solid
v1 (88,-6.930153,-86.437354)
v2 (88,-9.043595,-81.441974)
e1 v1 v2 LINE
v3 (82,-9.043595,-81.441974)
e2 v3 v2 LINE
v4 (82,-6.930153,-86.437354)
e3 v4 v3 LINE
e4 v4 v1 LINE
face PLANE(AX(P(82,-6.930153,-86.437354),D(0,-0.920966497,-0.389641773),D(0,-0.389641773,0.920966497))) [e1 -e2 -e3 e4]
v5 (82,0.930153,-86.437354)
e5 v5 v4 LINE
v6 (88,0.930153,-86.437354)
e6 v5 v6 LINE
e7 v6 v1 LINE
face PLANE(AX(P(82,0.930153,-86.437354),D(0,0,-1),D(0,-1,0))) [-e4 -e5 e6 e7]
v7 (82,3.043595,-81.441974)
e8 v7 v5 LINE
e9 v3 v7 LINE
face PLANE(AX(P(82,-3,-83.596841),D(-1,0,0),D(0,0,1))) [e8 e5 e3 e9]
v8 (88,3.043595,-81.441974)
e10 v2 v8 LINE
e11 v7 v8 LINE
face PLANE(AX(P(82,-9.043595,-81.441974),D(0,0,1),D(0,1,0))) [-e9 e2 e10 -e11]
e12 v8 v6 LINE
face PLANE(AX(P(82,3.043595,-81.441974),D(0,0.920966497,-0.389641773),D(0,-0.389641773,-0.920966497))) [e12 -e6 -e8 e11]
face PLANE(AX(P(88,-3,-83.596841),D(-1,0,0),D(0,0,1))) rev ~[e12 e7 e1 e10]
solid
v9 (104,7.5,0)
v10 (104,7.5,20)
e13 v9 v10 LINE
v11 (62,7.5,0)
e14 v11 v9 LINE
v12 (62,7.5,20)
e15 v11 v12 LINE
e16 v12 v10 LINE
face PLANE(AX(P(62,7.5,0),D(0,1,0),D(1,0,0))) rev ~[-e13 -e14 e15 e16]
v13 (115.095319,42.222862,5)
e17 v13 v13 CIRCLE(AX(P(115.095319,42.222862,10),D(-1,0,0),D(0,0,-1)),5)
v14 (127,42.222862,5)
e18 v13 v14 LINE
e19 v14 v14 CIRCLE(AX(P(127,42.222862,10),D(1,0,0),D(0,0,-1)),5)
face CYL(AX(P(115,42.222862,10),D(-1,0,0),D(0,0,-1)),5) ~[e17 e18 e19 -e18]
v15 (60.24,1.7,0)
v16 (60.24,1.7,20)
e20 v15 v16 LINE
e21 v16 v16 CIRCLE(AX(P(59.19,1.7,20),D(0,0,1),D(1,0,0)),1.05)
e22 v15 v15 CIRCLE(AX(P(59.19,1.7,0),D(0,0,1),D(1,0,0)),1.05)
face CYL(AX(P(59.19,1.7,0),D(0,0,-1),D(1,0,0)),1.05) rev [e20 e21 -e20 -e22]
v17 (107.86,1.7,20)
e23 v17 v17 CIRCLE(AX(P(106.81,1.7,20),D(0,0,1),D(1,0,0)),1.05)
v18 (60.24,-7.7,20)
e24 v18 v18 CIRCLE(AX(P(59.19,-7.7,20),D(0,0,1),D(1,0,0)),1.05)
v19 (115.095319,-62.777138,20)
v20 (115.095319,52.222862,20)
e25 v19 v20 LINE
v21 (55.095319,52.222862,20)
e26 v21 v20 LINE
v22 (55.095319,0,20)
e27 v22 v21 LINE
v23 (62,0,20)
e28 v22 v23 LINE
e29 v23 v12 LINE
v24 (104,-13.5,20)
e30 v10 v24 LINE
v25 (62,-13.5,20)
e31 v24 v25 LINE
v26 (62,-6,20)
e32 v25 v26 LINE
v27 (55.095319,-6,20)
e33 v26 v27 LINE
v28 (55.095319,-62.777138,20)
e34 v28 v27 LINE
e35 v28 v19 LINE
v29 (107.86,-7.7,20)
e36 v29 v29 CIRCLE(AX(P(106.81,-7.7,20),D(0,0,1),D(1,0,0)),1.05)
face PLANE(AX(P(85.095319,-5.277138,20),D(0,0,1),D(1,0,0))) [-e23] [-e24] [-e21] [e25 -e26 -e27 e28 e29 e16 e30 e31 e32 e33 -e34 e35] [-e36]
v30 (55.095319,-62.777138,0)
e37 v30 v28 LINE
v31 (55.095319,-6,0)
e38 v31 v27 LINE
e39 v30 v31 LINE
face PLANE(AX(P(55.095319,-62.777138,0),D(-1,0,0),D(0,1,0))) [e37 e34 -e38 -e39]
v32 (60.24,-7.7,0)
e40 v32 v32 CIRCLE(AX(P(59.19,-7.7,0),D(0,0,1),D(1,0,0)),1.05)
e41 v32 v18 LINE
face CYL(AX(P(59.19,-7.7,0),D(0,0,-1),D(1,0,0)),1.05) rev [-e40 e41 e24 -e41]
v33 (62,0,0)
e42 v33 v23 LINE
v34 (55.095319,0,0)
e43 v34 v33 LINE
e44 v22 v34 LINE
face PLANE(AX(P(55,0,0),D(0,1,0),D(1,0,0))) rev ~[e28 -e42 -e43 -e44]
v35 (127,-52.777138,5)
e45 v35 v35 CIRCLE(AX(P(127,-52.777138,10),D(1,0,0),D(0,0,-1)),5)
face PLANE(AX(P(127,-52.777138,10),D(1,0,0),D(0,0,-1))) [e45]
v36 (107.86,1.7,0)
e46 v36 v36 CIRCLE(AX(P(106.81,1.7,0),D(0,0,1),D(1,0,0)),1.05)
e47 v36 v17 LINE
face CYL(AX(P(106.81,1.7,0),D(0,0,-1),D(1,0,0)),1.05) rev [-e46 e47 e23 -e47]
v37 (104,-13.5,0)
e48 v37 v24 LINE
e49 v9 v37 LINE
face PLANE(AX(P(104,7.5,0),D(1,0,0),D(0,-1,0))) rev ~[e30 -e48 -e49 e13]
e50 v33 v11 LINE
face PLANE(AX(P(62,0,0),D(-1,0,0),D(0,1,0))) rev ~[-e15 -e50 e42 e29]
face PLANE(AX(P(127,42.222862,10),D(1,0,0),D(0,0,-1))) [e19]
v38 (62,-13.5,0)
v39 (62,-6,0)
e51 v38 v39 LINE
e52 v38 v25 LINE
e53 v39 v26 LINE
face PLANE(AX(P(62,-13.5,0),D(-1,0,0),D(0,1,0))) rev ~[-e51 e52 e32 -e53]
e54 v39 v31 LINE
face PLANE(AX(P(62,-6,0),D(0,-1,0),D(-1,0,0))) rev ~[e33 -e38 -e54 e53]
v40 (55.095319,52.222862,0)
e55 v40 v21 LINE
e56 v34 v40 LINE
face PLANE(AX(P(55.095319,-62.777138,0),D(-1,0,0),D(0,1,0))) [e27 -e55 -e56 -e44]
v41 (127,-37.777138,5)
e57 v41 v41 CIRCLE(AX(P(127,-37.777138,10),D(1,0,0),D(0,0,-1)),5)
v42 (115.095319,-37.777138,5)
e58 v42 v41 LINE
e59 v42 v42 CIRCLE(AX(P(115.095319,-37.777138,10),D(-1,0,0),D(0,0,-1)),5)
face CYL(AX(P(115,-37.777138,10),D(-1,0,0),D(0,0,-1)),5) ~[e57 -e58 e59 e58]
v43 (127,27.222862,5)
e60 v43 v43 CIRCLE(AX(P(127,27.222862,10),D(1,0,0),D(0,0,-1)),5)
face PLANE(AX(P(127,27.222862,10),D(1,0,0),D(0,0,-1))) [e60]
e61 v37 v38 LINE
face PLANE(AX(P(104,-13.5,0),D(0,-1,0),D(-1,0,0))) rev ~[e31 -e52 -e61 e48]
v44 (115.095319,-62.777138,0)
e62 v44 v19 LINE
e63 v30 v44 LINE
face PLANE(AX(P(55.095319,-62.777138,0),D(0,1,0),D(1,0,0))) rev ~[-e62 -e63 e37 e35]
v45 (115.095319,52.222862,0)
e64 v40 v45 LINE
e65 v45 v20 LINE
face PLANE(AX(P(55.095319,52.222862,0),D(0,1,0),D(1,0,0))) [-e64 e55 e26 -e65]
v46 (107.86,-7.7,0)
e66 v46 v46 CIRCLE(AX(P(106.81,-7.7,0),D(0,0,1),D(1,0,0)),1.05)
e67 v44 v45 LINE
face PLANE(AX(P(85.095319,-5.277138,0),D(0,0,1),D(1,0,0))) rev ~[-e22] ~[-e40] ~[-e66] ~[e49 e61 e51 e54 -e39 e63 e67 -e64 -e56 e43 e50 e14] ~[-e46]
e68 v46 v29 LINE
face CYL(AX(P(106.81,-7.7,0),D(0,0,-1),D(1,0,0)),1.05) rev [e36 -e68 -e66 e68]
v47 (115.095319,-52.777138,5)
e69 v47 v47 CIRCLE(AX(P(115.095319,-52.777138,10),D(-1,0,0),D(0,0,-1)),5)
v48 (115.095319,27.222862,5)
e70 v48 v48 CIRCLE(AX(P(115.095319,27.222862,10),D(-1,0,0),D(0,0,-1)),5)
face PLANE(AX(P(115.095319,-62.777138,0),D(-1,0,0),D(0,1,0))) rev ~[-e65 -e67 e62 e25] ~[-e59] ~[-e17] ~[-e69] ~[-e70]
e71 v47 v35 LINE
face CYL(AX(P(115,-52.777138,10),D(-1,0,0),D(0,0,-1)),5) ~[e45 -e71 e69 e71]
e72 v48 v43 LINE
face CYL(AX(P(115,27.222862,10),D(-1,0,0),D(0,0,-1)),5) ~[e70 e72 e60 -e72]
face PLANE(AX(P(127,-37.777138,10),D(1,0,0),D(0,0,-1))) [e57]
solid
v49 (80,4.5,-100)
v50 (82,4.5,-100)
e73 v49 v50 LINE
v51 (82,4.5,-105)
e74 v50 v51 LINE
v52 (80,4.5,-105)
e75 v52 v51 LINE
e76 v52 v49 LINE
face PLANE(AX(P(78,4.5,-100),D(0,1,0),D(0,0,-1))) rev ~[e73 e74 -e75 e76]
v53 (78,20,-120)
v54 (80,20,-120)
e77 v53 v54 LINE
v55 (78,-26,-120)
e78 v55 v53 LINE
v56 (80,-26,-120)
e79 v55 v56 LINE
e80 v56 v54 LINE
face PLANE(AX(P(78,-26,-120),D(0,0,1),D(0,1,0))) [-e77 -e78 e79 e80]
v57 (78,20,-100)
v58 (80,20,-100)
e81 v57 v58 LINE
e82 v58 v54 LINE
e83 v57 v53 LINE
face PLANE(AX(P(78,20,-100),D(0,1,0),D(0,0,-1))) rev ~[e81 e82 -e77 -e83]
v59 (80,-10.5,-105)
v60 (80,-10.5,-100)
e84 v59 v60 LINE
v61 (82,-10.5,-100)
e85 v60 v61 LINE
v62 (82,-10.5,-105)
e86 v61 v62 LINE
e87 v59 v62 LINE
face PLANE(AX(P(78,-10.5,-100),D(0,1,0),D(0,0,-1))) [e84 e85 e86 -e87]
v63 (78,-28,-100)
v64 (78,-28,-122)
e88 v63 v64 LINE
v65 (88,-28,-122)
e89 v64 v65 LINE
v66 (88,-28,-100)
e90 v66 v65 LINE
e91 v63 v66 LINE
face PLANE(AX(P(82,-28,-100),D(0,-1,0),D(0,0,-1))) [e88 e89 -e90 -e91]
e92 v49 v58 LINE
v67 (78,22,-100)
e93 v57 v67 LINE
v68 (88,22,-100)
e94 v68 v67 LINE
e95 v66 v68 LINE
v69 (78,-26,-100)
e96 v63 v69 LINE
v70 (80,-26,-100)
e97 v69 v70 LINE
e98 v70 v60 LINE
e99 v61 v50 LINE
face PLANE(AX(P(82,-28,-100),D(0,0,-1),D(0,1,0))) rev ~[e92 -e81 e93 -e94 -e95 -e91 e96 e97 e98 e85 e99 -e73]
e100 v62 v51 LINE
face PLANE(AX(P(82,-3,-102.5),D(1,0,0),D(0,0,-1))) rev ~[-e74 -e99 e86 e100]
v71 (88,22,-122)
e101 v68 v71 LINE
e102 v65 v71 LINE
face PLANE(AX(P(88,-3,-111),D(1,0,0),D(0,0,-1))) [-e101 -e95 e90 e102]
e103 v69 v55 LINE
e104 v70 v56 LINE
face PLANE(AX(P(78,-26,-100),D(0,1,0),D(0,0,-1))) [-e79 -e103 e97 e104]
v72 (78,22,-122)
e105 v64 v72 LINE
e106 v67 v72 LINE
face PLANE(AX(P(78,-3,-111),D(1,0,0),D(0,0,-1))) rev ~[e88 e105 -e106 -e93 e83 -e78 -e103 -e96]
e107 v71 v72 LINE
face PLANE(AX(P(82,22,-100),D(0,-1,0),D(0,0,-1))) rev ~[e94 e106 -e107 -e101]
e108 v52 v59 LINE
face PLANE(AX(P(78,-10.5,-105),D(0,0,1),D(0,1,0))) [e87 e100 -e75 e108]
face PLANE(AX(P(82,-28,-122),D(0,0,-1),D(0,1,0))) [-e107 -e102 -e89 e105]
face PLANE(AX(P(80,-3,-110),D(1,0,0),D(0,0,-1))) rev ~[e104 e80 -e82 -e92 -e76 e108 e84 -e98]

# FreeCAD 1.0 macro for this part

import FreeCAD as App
import Part
import Sketcher
from FreeCAD import Vector
Q = App.Units.Quantity


def add_polygon(sketch, points):
    """Adds a closed chain of lines whose ends are joined by coincident constraints."""
    first, n = sketch.GeometryCount, len(points)
    for a, b in zip(points, points[1:] + points[:1]):
        sketch.addGeometry(Part.LineSegment(App.Vector(*a, 0), App.Vector(*b, 0)), False)
    for i in range(n):
        sketch.addConstraint(Sketcher.Constraint("Coincident", first + i, 2, first + (i + 1) % n, 1))

doc = App.newDocument("Part")
body = doc.addObject("PartDesign::Body", "Body")

# Sketch on XY plane
sketch1 = doc.addObject("Sketcher::SketchObject", "Sketch")
body.addObject(sketch1)
sketch1.AttachmentSupport = (doc.XY_Plane, [""])
sketch1.MapMode = "FlatFace"
add_polygon(sketch1, [(55.095319, 52.222862), (55.095319, -62.777138), (115.095319, -62.777138), (115.095319, 52.222862)])  # lines 0-3
sketch1.addConstraint([
    Sketcher.Constraint("Vertical", 0),
    Sketcher.Constraint("Horizontal", 1),
    Sketcher.Constraint("Vertical", 2),
    Sketcher.Constraint("Horizontal", 3),
    Sketcher.Constraint("DistanceX", 1, 1, 1, 2, Q("60 mm")),
    Sketcher.Constraint("DistanceY", 0, 2, 0, 1, Q("115 mm")),
    Sketcher.Constraint("DistanceX", -1, 1, 0, 2, Q("55.095319 mm")),
    Sketcher.Constraint("DistanceY", 0, 2, -1, 1, Q("62.777138 mm")),
])
pad1 = doc.addObject("PartDesign::Pad", "Pad")
body.addObject(pad1)
pad1.Profile = sketch1
pad1.Length = 20

# Sketch on XY plane
sketch2 = doc.addObject("Sketcher::SketchObject", "Sketch001")
body.addObject(sketch2)
sketch2.AttachmentSupport = (doc.XY_Plane, [""])
sketch2.MapMode = "FlatFace"
sketch2.addGeometry(Part.Circle(Vector(59.19, 1.7, 0), Vector(0, 0, 1), 1.05), False)  # 0
sketch2.addGeometry(Part.Circle(Vector(106.81, 1.7, 0), Vector(0, 0, 1), 1.05), False)  # 1
sketch2.addGeometry(Part.Circle(Vector(106.81, -7.7, 0), Vector(0, 0, 1), 1.05), False)  # 2
sketch2.addGeometry(Part.Circle(Vector(59.19, -7.7, 0), Vector(0, 0, 1), 1.05), False)  # 3
add_polygon(sketch2, [(55, 0), (55, -6), (62, -6), (62, -13.5), (104, -13.5), (104, 7.5), (62, 7.5), (62, 0)])  # lines 4-11
sketch2.addConstraint([
    Sketcher.Constraint("Vertical", 4),
    Sketcher.Constraint("Horizontal", 5),
    Sketcher.Constraint("Vertical", 6),
    Sketcher.Constraint("Horizontal", 7),
    Sketcher.Constraint("Vertical", 8),
    Sketcher.Constraint("Horizontal", 9),
    Sketcher.Constraint("Vertical", 10),
    Sketcher.Constraint("Horizontal", 11),
    Sketcher.Constraint("Equal", 0, 1),
    Sketcher.Constraint("Equal", 1, 2),
    Sketcher.Constraint("Equal", 2, 3),
    Sketcher.Constraint("PointOnObject", 10, 2, -1),
    Sketcher.Constraint("Horizontal", 0, 3, 1, 3),
    Sketcher.Constraint("Horizontal", 2, 3, 3, 3),
    Sketcher.Constraint("Vertical", 1, 3, 2, 3),
    Sketcher.Constraint("Vertical", 0, 3, 3, 3),
    Sketcher.Constraint("Vertical", 6, 2, 9, 2),
    Sketcher.Constraint("Equal", 6, 10),
    Sketcher.Constraint("Diameter", 0, Q("2.1 mm")),
    Sketcher.Constraint("DistanceX", 5, 1, 5, 2, Q("7 mm")),
    Sketcher.Constraint("DistanceX", 7, 1, 7, 2, Q("42 mm")),
    Sketcher.Constraint("DistanceY", 4, 2, 4, 1, Q("6 mm")),
    Sketcher.Constraint("DistanceY", 8, 1, 8, 2, Q("21 mm")),
    Sketcher.Constraint("DistanceX", -1, 1, 4, 2, Q("55 mm")),
    Sketcher.Constraint("DistanceY", -1, 1, 0, 3, Q("1.7 mm")),
    Sketcher.Constraint("DistanceY", 2, 3, -1, 1, Q("7.7 mm")),
    Sketcher.Constraint("DistanceX", -1, 1, 0, 3, Q("59.19 mm")),
    Sketcher.Constraint("DistanceX", -1, 1, 1, 3, Q("106.81 mm")),
])
pocket1 = doc.addObject("PartDesign::Pocket", "Pocket")
body.addObject(pocket1)
pocket1.Profile = sketch2
pocket1.Length = 20
pocket1.Reversed = True

# Sketch on YZ plane
sketch3 = doc.addObject("Sketcher::SketchObject", "Sketch002")
body.addObject(sketch3)
sketch3.AttachmentSupport = (doc.YZ_Plane, [""])
sketch3.MapMode = "FlatFace"
sketch3.AttachmentOffset = App.Placement(Vector(0, 0, 115), App.Rotation())
sketch3.addGeometry([
    Part.Circle(Vector(42.222862, 10, 0), Vector(0, 0, 1), 5),
    Part.Circle(Vector(27.222862, 10, 0), Vector(0, 0, 1), 5),
    Part.Circle(Vector(-37.777138, 10, 0), Vector(0, 0, 1), 5),
    Part.Circle(Vector(-52.777138, 10, 0), Vector(0, 0, 1), 5),
], False)
sketch3.addConstraint([
    Sketcher.Constraint("Equal", 0, 1),
    Sketcher.Constraint("Equal", 1, 2),
    Sketcher.Constraint("Equal", 2, 3),
    Sketcher.Constraint("Horizontal", 0, 3, 1, 3),
    Sketcher.Constraint("Horizontal", 1, 3, 2, 3),
    Sketcher.Constraint("Horizontal", 2, 3, 3, 3),
    Sketcher.Constraint("Diameter", 0, Q("10 mm")),
    Sketcher.Constraint("DistanceY", -1, 1, 0, 3, Q("10 mm")),
    Sketcher.Constraint("DistanceX", 1, 3, 0, 3, Q("15 mm")),
    Sketcher.Constraint("DistanceX", 2, 3, 1, 3, Q("65 mm")),
    Sketcher.Constraint("DistanceX", 3, 3, 2, 3, Q("15 mm")),
    Sketcher.Constraint("DistanceX", -1, 1, 0, 3, Q("42.222862 mm")),
])
pad2 = doc.addObject("PartDesign::Pad", "Pad001")
body.addObject(pad2)
pad2.Profile = sketch3
pad2.Length = 12
body2 = doc.addObject("PartDesign::Body", "Body001")

# Sketch on YZ plane
sketch4 = doc.addObject("Sketcher::SketchObject", "Sketch003")
body2.addObject(sketch4)
sketch4.AttachmentSupport = (doc.getObject("YZ_Plane001"), [""])
sketch4.MapMode = "FlatFace"
sketch4.AttachmentOffset = App.Placement(Vector(0, 0, 82), App.Rotation())
add_polygon(sketch4, [(22, -100), (-28, -100), (-28, -122), (22, -122)])  # lines 0-3
sketch4.addConstraint([
    Sketcher.Constraint("Horizontal", 0),
    Sketcher.Constraint("Vertical", 1),
    Sketcher.Constraint("Horizontal", 2),
    Sketcher.Constraint("Vertical", 3),
    Sketcher.Constraint("DistanceX", 0, 2, 0, 1, Q("50 mm")),
    Sketcher.Constraint("DistanceY", 1, 2, 1, 1, Q("22 mm")),
    Sketcher.Constraint("DistanceX", 0, 2, -1, 1, Q("28 mm")),
    Sketcher.Constraint("DistanceY", 0, 2, -1, 1, Q("100 mm")),
])
pad3 = doc.addObject("PartDesign::Pad", "Pad002")
body2.addObject(pad3)
pad3.Profile = sketch4
pad3.Type = "TwoLengths"
pad3.Length = 6
pad3.Length2 = 4

# Sketch on YZ plane
sketch5 = doc.addObject("Sketcher::SketchObject", "Sketch004")
body2.addObject(sketch5)
sketch5.AttachmentSupport = (doc.getObject("YZ_Plane001"), [""])
sketch5.MapMode = "FlatFace"
sketch5.AttachmentOffset = App.Placement(Vector(0, 0, 78), App.Rotation())
add_polygon(sketch5, [(20, -100), (-26, -100), (-26, -120), (20, -120)])  # lines 0-3
sketch5.addConstraint([
    Sketcher.Constraint("Horizontal", 0),
    Sketcher.Constraint("Vertical", 1),
    Sketcher.Constraint("Horizontal", 2),
    Sketcher.Constraint("Vertical", 3),
    Sketcher.Constraint("DistanceX", 0, 2, 0, 1, Q("46 mm")),
    Sketcher.Constraint("DistanceY", 1, 2, 1, 1, Q("20 mm")),
    Sketcher.Constraint("DistanceX", 0, 2, -1, 1, Q("26 mm")),
    Sketcher.Constraint("DistanceY", 0, 2, -1, 1, Q("100 mm")),
])
pocket2 = doc.addObject("PartDesign::Pocket", "Pocket001")
body2.addObject(pocket2)
pocket2.Profile = sketch5
pocket2.Length = 2
pocket2.Reversed = True

# Sketch on YZ plane
sketch6 = doc.addObject("Sketcher::SketchObject", "Sketch005")
body2.addObject(sketch6)
sketch6.AttachmentSupport = (doc.getObject("YZ_Plane001"), [""])
sketch6.MapMode = "FlatFace"
sketch6.AttachmentOffset = App.Placement(Vector(0, 0, 78), App.Rotation())
add_polygon(sketch6, [(4.5, -100), (-10.5, -100), (-10.5, -105), (4.5, -105)])  # lines 0-3
sketch6.addConstraint([
    Sketcher.Constraint("Horizontal", 0),
    Sketcher.Constraint("Vertical", 1),
    Sketcher.Constraint("Horizontal", 2),
    Sketcher.Constraint("Vertical", 3),
    Sketcher.Constraint("DistanceX", 0, 2, 0, 1, Q("15 mm")),
    Sketcher.Constraint("DistanceY", 1, 2, 1, 1, Q("5 mm")),
    Sketcher.Constraint("DistanceY", 0, 2, -1, 1, Q("100 mm")),
    Sketcher.Constraint("DistanceX", 0, 2, -1, 1, Q("10.5 mm")),
])
pocket3 = doc.addObject("PartDesign::Pocket", "Pocket002")
body2.addObject(pocket3)
pocket3.Profile = sketch6
pocket3.Length = 4
pocket3.Reversed = True
body3 = doc.addObject("PartDesign::Body", "Body002")

# Sketch on YZ plane
sketch7 = doc.addObject("Sketcher::SketchObject", "Sketch006")
body3.addObject(sketch7)
sketch7.AttachmentSupport = (doc.getObject("YZ_Plane002"), [""])
sketch7.MapMode = "FlatFace"
sketch7.AttachmentOffset = App.Placement(Vector(0, 0, 82), App.Rotation())
add_polygon(sketch7, [(-6.930153, -86.437354), (0.930153, -86.437354), (3.043595, -81.441974), (-9.043595, -81.441974)])  # lines 0-3
sketch7.addConstraint([
    Sketcher.Constraint("Horizontal", 0),
    Sketcher.Constraint("Horizontal", 2),
    Sketcher.Constraint("Equal", 1, 3),
    Sketcher.Constraint("DistanceX", 2, 2, 2, 1, Q("12.087189 mm")),
    Sketcher.Constraint("DistanceX", 0, 1, 0, 2, Q("7.860306 mm")),
    Sketcher.Constraint("DistanceY", 0, 2, 1, 2, Q("4.99538 mm")),
    Sketcher.Constraint("DistanceX", -1, 1, 0, 2, Q("0.930153 mm")),
    Sketcher.Constraint("DistanceY", 0, 2, -1, 1, Q("86.437354 mm")),
])
pad4 = doc.addObject("PartDesign::Pad", "Pad003")
body3.addObject(pad4)
pad4.Profile = sketch7
pad4.Length = 6

doc.recompute()
